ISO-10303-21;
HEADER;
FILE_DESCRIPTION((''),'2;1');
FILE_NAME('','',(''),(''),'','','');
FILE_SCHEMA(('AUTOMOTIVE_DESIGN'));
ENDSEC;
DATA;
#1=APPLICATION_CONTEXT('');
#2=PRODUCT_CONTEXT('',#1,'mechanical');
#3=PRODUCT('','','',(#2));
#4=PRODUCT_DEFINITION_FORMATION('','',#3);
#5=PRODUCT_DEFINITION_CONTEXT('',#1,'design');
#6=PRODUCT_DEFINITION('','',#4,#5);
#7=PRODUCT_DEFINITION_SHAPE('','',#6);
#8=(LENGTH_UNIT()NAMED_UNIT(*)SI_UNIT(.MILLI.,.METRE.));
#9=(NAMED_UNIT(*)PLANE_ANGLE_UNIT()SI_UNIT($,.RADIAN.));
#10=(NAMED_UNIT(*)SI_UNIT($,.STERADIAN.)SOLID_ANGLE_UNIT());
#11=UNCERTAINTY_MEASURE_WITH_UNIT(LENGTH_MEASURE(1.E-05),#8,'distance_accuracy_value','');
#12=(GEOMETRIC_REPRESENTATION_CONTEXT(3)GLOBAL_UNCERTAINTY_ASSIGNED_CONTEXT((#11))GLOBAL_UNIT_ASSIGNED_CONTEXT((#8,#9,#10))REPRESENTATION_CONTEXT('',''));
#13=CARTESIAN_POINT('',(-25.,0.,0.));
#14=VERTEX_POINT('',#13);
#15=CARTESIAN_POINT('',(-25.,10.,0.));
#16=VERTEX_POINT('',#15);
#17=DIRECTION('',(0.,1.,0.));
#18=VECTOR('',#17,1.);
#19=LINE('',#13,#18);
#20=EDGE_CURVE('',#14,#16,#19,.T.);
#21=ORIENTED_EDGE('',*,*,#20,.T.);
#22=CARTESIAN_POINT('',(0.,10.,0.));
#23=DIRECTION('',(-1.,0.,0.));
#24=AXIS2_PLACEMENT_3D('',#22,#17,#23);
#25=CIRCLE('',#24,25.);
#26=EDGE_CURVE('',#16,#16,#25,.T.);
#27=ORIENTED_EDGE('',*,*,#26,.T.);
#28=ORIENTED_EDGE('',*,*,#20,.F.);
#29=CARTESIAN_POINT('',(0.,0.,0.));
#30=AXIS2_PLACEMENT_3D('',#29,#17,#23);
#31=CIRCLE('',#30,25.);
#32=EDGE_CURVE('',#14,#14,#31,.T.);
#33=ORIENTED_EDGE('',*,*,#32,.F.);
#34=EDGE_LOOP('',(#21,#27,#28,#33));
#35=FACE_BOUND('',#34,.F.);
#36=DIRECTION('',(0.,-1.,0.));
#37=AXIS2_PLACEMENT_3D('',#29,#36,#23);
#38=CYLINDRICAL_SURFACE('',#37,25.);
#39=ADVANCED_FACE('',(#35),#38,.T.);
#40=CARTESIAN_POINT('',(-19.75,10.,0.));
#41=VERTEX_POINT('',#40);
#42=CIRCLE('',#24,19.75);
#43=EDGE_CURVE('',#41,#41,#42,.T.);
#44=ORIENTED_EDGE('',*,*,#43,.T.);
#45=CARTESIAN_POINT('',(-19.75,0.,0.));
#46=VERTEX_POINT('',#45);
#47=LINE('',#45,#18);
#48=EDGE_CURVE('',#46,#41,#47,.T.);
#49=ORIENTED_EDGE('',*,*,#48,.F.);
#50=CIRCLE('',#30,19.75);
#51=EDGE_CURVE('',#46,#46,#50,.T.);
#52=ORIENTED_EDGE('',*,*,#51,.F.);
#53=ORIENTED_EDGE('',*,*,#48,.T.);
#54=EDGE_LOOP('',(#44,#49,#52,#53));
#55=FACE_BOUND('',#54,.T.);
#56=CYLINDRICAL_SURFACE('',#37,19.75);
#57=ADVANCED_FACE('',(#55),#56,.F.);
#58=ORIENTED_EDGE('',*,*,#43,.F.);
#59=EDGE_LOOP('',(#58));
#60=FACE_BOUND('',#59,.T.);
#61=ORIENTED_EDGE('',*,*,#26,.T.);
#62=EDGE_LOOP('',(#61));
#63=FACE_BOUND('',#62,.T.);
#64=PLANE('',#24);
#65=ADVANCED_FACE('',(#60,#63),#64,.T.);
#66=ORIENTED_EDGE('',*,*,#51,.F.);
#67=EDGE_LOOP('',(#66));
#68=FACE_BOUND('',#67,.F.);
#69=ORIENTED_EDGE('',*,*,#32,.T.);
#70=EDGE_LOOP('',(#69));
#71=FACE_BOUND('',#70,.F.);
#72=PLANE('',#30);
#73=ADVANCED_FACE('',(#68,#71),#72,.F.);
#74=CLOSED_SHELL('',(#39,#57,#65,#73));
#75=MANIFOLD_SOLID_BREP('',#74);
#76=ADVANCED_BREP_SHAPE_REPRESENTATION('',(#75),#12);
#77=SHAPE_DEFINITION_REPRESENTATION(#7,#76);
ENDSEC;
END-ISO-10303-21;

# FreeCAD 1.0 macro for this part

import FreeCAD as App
import Part
import Sketcher

doc = App.newDocument("Part")
params = doc.addObject("Spreadsheet::Sheet", "Params")
for row, (alias, value) in enumerate([
    ("sketch1_diameter", "50 mm"),
    ("sketch1_diameter2", "39.5 mm"),
    ("pad1_length", "10 mm"),
], start=1):
    params.set(f"A{row}", alias)
    params.set(f"B{row}", "=" + value)
    params.setAlias(f"B{row}", alias)

body = doc.addObject("PartDesign::Body", "Body")

# Sketch on XZ plane
sketch1 = body.newObject("Sketcher::SketchObject", "Sketch")
sketch1.AttachmentSupport = (doc.getObject("XZ_Plane"), [""])
sketch1.MapMode = "FlatFace"
sketch1.addGeometry(Part.Circle(App.Vector(0, 0, 0), App.Vector(0, 0, 1), 25), False)
sketch1.addGeometry(Part.Circle(App.Vector(0, 0, 0), App.Vector(0, 0, 1), 19.75), False)
sketch1.addConstraint(Sketcher.Constraint("Coincident", 0, 3, -1, 1))
sketch1.addConstraint(Sketcher.Constraint("Coincident", 1, 3, -1, 1))
sketch1.addConstraint(Sketcher.Constraint("Diameter", 0, 50.0))
sketch1.addConstraint(Sketcher.Constraint("Diameter", 1, 39.5))
sketch1.setExpression("Constraints[2]", "Params.sketch1_diameter")
sketch1.setExpression("Constraints[3]", "Params.sketch1_diameter2")
pad1 = body.newObject("PartDesign::Pad", "Pad")
pad1.Profile = sketch1
pad1.setExpression("Length", "Params.pad1_length")
pad1.Reversed = True

doc.recompute()
